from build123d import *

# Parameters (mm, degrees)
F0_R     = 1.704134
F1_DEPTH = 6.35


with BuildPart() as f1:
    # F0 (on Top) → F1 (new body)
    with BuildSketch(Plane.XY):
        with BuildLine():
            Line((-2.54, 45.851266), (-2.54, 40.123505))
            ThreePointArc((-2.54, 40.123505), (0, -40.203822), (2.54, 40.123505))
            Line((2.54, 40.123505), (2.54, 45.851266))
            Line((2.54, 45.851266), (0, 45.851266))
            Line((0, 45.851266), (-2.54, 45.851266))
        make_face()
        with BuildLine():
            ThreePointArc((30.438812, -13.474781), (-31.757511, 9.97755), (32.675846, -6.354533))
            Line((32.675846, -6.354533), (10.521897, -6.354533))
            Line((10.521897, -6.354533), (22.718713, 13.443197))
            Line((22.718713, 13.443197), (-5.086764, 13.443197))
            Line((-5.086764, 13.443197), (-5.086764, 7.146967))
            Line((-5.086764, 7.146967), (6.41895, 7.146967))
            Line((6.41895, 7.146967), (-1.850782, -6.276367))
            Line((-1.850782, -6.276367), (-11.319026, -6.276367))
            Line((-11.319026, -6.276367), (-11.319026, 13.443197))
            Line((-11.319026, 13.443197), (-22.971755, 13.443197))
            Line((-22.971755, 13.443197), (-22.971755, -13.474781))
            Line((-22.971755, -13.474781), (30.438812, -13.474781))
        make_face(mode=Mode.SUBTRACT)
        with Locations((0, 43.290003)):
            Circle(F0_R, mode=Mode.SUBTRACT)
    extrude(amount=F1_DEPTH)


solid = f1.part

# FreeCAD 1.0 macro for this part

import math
import FreeCAD as App
import Part
import Sketcher

V = App.Vector
Q = App.Units.Quantity

doc = App.newDocument("Part")
body = doc.addObject("PartDesign::Body", "Body")

# Sketch on XY plane
sketch1 = body.newObject("Sketcher::SketchObject", "Sketch")
sketch1.AttachmentSupport = (doc.getObject("XY_Plane"), [""])
sketch1.MapMode = "FlatFace"
sketch1.addGeometry(Part.LineSegment(V(-2.54, 45.851266, 0), V(-2.54, 40.123505, 0)), False)
sketch1.addGeometry(Part.ArcOfCircle(Part.Circle(V(0, 0, 0), V(0, 0, 1), 40.203822), math.radians(93.622249), math.radians(446.377751)), False)
sketch1.addGeometry(Part.LineSegment(V(2.54, 40.123505, 0), V(2.54, 45.851266, 0)), False)
sketch1.addGeometry(Part.LineSegment(V(2.54, 45.851266, 0), V(-2.54, 45.851266, 0)), False)
sketch1.addGeometry(Part.LineSegment(V(-22.971755, -13.474781, 0), V(30.438812, -13.474781, 0)), False)
sketch1.addGeometry(Part.ArcOfCircle(Part.Circle(V(0, 0, 0), V(0, 0, 1), 33.288001), math.radians(-11.005055), math.radians(336.121785)), False)
sketch1.addGeometry(Part.LineSegment(V(32.675846, -6.354533, 0), V(10.521897, -6.354533, 0)), False)
sketch1.addGeometry(Part.LineSegment(V(10.521897, -6.354533, 0), V(22.718713, 13.443197, 0)), False)
sketch1.addGeometry(Part.LineSegment(V(22.718713, 13.443197, 0), V(-5.086764, 13.443197, 0)), False)
sketch1.addGeometry(Part.LineSegment(V(-5.086764, 13.443197, 0), V(-5.086764, 7.146967, 0)), False)
sketch1.addGeometry(Part.LineSegment(V(-5.086764, 7.146967, 0), V(6.41895, 7.146967, 0)), False)
sketch1.addGeometry(Part.LineSegment(V(6.41895, 7.146967, 0), V(-1.850782, -6.276367, 0)), False)
sketch1.addGeometry(Part.LineSegment(V(-1.850782, -6.276367, 0), V(-11.319026, -6.276367, 0)), False)
sketch1.addGeometry(Part.LineSegment(V(-11.319026, -6.276367, 0), V(-11.319026, 13.443197, 0)), False)
sketch1.addGeometry(Part.LineSegment(V(-11.319026, 13.443197, 0), V(-22.971755, 13.443197, 0)), False)
sketch1.addGeometry(Part.LineSegment(V(-22.971755, 13.443197, 0), V(-22.971755, -13.474781, 0)), False)
sketch1.addGeometry(Part.Circle(V(0, 43.290003, 0), V(0, 0, 1), 1.704134), False)
sketch1.addConstraint(Sketcher.Constraint("Coincident", 0, 2, 1, 1))
sketch1.addConstraint(Sketcher.Constraint("Coincident", 1, 2, 2, 1))
sketch1.addConstraint(Sketcher.Constraint("Coincident", 2, 2, 3, 1))
sketch1.addConstraint(Sketcher.Constraint("Coincident", 3, 2, 0, 1))
sketch1.addConstraint(Sketcher.Constraint("Coincident", 4, 2, 5, 2))
sketch1.addConstraint(Sketcher.Constraint("Coincident", 5, 1, 6, 1))
sketch1.addConstraint(Sketcher.Constraint("Coincident", 6, 2, 7, 1))
sketch1.addConstraint(Sketcher.Constraint("Coincident", 7, 2, 8, 1))
sketch1.addConstraint(Sketcher.Constraint("Coincident", 8, 2, 9, 1))
sketch1.addConstraint(Sketcher.Constraint("Coincident", 9, 2, 10, 1))
sketch1.addConstraint(Sketcher.Constraint("Coincident", 10, 2, 11, 1))
sketch1.addConstraint(Sketcher.Constraint("Coincident", 11, 2, 12, 1))
sketch1.addConstraint(Sketcher.Constraint("Coincident", 12, 2, 13, 1))
sketch1.addConstraint(Sketcher.Constraint("Coincident", 13, 2, 14, 1))
sketch1.addConstraint(Sketcher.Constraint("Coincident", 14, 2, 15, 1))
sketch1.addConstraint(Sketcher.Constraint("Coincident", 15, 2, 4, 1))
sketch1.addConstraint(Sketcher.Constraint("Vertical", 0))
sketch1.addConstraint(Sketcher.Constraint("Vertical", 2))
sketch1.addConstraint(Sketcher.Constraint("Horizontal", 3))
sketch1.addConstraint(Sketcher.Constraint("Horizontal", 4))
sketch1.addConstraint(Sketcher.Constraint("Horizontal", 6))
sketch1.addConstraint(Sketcher.Constraint("Horizontal", 8))
sketch1.addConstraint(Sketcher.Constraint("Vertical", 9))
sketch1.addConstraint(Sketcher.Constraint("Horizontal", 10))
sketch1.addConstraint(Sketcher.Constraint("Horizontal", 12))
sketch1.addConstraint(Sketcher.Constraint("Vertical", 13))
sketch1.addConstraint(Sketcher.Constraint("Horizontal", 14))
sketch1.addConstraint(Sketcher.Constraint("Vertical", 15))
sketch1.addConstraint(Sketcher.Constraint("Coincident", 1, 3, -1, 1))
sketch1.addConstraint(Sketcher.Constraint("Coincident", 5, 3, -1, 1))
sketch1.addConstraint(Sketcher.Constraint("PointOnObject", 16, 3, -2))
sketch1.addConstraint(Sketcher.Constraint("Parallel", 7, 11))
sketch1.addConstraint(Sketcher.Constraint("Horizontal", 0, 2, 1, 2))
sketch1.addConstraint(Sketcher.Constraint("Horizontal", 8, 2, 13, 2))
sketch1.addConstraint(Sketcher.Constraint("DistanceX", 3, 2, 3, 1, Q("0.2 in")))
sketch1.addConstraint(Sketcher.Constraint("Radius", 5, Q("33.288001 mm")))
sketch1.addConstraint(Sketcher.Constraint("Diameter", 16, Q("3.408268 mm")))
sketch1.addConstraint(Sketcher.Constraint("Radius", 1, Q("40.203822 mm")))
sketch1.addConstraint(Sketcher.Constraint("DistanceX", 14, 2, -1, 1, Q("0.9043998 in")))
sketch1.addConstraint(Sketcher.Constraint("DistanceX", 6, 2, 6, 1, Q("22.153949 mm")))
sketch1.addConstraint(Sketcher.Constraint("DistanceX", 14, 2, 14, 1, Q("11.652729 mm")))
sketch1.addConstraint(Sketcher.Constraint("DistanceY", 0, 2, 0, 1, Q("5.727761 mm")))
sketch1.addConstraint(Sketcher.Constraint("DistanceY", 9, 2, 9, 1, Q("6.29623 mm")))
sketch1.addConstraint(Sketcher.Constraint("DistanceY", 1, 2, 16, 3, Q("3.166498 mm")))
sketch1.addConstraint(Sketcher.Constraint("DistanceX", 7, 2, 4, 2, Q("7.720099 mm")))
sketch1.addConstraint(Sketcher.Constraint("DistanceY", 6, 2, 9, 2, Q("13.5015 mm")))
sketch1.addConstraint(Sketcher.Constraint("Distance", 11, Q("15.766241 mm")))
sketch1.addConstraint(Sketcher.Constraint("DistanceX", 4, 1, 4, 2, Q("53.410567 mm")))
sketch1.addConstraint(Sketcher.Constraint("DistanceX", 8, 2, 8, 1, Q("27.805477 mm")))
sketch1.addConstraint(Sketcher.Constraint("DistanceX", 10, 1, 10, 2, Q("11.505714 mm")))
sketch1.addConstraint(Sketcher.Constraint("DistanceX", 12, 2, 12, 1, Q("9.468244 mm")))
pad1 = body.newObject("PartDesign::Pad", "Pad")
pad1.Profile = sketch1
pad1.Length = Q("0.25 in")

doc.recompute()
